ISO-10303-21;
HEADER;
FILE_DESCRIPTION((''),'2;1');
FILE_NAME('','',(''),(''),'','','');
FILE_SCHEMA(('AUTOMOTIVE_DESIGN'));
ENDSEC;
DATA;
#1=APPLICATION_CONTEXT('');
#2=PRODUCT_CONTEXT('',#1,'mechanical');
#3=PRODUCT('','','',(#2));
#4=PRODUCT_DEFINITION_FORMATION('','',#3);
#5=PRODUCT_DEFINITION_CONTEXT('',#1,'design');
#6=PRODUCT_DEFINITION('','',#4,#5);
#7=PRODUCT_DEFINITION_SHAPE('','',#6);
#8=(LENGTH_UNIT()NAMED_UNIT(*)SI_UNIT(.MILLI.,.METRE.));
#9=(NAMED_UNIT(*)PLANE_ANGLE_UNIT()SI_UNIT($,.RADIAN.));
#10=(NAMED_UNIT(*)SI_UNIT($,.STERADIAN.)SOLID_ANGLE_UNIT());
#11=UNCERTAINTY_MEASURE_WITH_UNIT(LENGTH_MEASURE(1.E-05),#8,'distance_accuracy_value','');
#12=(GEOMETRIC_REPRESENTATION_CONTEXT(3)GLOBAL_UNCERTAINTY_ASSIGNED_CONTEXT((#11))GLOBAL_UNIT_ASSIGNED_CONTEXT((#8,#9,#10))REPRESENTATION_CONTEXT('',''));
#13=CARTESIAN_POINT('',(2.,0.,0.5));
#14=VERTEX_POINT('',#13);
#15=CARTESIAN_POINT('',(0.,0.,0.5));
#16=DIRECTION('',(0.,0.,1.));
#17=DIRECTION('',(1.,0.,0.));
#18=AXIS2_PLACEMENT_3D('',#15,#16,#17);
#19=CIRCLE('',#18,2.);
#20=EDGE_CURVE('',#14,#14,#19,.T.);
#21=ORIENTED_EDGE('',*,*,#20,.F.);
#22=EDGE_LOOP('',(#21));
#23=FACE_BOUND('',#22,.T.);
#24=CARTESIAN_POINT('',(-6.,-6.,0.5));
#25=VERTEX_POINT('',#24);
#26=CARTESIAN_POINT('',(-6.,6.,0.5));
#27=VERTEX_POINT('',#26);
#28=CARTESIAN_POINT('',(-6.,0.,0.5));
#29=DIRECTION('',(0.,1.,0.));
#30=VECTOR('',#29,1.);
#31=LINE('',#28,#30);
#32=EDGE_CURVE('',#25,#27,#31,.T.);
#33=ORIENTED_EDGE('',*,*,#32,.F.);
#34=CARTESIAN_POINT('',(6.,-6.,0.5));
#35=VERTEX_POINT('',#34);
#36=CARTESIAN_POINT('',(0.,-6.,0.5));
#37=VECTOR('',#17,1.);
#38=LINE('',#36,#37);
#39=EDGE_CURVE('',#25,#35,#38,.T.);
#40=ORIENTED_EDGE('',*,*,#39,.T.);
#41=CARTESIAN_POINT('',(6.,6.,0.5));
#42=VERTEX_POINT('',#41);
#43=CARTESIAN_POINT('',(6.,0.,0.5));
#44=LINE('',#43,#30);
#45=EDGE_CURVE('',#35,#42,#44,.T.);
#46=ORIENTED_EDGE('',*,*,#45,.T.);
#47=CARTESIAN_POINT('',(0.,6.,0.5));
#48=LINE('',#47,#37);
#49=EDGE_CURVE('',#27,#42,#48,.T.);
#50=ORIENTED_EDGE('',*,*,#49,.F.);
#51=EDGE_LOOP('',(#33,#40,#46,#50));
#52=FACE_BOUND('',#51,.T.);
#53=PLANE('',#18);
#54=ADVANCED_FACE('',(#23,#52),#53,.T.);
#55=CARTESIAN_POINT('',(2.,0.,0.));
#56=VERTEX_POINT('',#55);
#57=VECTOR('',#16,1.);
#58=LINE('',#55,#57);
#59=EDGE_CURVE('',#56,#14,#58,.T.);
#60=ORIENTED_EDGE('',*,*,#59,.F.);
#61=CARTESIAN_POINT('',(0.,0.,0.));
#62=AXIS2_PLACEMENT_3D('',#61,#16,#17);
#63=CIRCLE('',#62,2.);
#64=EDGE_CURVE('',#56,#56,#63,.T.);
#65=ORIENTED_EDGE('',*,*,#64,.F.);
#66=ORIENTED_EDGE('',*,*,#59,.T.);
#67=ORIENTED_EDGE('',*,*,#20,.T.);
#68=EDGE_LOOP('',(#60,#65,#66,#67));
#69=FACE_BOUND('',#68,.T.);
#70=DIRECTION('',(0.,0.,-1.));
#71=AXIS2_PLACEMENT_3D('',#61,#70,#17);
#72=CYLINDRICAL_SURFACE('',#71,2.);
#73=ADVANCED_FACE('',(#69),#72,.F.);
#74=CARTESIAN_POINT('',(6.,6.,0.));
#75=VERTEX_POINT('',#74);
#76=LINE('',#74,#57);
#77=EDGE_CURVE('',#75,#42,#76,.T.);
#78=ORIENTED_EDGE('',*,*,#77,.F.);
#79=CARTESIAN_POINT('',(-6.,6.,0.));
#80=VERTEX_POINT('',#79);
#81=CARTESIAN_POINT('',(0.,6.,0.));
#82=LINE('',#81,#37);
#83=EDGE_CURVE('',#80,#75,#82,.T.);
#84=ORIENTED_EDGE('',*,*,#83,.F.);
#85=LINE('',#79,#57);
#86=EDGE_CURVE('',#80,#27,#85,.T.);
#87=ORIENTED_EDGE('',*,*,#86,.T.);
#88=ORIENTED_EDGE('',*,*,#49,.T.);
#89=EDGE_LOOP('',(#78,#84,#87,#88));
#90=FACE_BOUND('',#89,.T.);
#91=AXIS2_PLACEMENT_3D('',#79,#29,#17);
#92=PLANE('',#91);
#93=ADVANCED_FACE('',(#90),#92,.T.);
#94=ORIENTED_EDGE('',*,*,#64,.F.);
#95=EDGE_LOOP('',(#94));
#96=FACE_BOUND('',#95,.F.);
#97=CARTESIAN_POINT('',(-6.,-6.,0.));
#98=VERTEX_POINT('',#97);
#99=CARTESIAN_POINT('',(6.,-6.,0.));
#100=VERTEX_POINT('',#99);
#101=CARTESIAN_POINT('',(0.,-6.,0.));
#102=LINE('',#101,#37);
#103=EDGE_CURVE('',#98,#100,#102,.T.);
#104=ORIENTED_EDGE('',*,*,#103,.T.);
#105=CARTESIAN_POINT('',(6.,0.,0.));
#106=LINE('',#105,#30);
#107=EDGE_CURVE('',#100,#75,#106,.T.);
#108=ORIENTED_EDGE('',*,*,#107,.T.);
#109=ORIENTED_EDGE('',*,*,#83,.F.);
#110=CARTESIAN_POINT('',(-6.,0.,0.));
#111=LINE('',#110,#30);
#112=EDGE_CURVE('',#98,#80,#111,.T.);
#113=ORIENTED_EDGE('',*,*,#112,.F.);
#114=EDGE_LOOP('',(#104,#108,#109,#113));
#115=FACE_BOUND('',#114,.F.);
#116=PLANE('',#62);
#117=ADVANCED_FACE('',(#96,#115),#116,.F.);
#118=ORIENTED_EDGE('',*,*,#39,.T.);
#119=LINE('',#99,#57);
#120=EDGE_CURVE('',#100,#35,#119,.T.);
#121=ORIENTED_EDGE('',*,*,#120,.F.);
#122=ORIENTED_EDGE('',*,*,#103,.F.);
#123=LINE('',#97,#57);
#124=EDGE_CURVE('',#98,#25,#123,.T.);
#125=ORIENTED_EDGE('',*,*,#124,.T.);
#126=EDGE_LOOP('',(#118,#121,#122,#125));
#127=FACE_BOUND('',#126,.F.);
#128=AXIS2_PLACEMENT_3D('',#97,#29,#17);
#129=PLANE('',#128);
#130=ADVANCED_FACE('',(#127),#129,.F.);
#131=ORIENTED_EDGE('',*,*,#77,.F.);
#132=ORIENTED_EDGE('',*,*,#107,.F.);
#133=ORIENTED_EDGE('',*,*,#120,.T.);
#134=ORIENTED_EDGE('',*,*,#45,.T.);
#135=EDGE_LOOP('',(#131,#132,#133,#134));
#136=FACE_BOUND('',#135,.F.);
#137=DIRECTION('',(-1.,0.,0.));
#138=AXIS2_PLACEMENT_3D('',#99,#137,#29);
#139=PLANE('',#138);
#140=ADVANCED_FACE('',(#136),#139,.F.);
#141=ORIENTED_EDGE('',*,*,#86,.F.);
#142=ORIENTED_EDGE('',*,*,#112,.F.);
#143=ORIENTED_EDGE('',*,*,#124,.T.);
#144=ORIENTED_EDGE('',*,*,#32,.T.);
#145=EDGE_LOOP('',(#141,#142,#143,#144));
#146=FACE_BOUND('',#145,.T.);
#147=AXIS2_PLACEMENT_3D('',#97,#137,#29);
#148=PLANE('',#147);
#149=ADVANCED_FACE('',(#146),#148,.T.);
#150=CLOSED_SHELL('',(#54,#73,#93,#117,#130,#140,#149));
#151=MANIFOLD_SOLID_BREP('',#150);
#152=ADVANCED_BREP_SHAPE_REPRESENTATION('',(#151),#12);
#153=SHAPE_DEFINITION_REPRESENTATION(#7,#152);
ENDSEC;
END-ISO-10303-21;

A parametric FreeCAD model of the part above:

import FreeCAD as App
import Part
import Sketcher

V = App.Vector
Q = App.Units.Quantity


def add_polygon(sketch, points):
    """Adds a closed chain of lines whose ends are joined by coincident constraints."""
    first, n = sketch.GeometryCount, len(points)
    for a, b in zip(points, points[1:] + points[:1]):
        sketch.addGeometry(Part.LineSegment(App.Vector(*a, 0), App.Vector(*b, 0)), False)
    for i in range(n):
        sketch.addConstraint(Sketcher.Constraint("Coincident", first + i, 2, first + (i + 1) % n, 1))

doc = App.newDocument("Part")
params = doc.addObject("Spreadsheet::Sheet", "Params")
for row, (alias, value) in enumerate([
    ("sketch1_diameter", "4 mm"),
    ("sketch1_width", "12 mm"),
    ("pad1_length", "0.5 mm"),
], start=1):
    params.set(f"A{row}", alias)
    params.set(f"B{row}", "=" + value)
    params.setAlias(f"B{row}", alias)

body = doc.addObject("PartDesign::Body", "Body")

# Sketch on XY plane
sketch1 = body.newObject("Sketcher::SketchObject", "Sketch")
sketch1.AttachmentSupport = (doc.getObject("XY_Plane"), [""])
sketch1.MapMode = "FlatFace"
add_polygon(sketch1, [(-6, 6), (-6, -6), (6, -6), (6, 6)])  # lines 0-3
sketch1.addGeometry(Part.Circle(V(0, 0, 0), V(0, 0, 1), 2), False)  # 4
sketch1.addConstraint([
    Sketcher.Constraint("Vertical", 0),
    Sketcher.Constraint("Horizontal", 1),
    Sketcher.Constraint("Vertical", 2),
    Sketcher.Constraint("Horizontal", 3),
    Sketcher.Constraint("Coincident", 4, 3, -1, 1),
    Sketcher.Constraint("Symmetric", 0, 2, 2, 2, -1, 1),
    Sketcher.Constraint("Equal", 3, 0),
    Sketcher.Constraint("Diameter", 4, Q("4 mm")),
    Sketcher.Constraint("DistanceX", 1, 1, 1, 2, Q("12 mm")),
])
sketch1.setExpression("Constraints[11]", "Params.sketch1_diameter")
sketch1.setExpression("Constraints[12]", "Params.sketch1_width")
pad1 = body.newObject("PartDesign::Pad", "Pad")
pad1.Profile = sketch1
pad1.setExpression("Length", "Params.pad1_length")

doc.recompute()
